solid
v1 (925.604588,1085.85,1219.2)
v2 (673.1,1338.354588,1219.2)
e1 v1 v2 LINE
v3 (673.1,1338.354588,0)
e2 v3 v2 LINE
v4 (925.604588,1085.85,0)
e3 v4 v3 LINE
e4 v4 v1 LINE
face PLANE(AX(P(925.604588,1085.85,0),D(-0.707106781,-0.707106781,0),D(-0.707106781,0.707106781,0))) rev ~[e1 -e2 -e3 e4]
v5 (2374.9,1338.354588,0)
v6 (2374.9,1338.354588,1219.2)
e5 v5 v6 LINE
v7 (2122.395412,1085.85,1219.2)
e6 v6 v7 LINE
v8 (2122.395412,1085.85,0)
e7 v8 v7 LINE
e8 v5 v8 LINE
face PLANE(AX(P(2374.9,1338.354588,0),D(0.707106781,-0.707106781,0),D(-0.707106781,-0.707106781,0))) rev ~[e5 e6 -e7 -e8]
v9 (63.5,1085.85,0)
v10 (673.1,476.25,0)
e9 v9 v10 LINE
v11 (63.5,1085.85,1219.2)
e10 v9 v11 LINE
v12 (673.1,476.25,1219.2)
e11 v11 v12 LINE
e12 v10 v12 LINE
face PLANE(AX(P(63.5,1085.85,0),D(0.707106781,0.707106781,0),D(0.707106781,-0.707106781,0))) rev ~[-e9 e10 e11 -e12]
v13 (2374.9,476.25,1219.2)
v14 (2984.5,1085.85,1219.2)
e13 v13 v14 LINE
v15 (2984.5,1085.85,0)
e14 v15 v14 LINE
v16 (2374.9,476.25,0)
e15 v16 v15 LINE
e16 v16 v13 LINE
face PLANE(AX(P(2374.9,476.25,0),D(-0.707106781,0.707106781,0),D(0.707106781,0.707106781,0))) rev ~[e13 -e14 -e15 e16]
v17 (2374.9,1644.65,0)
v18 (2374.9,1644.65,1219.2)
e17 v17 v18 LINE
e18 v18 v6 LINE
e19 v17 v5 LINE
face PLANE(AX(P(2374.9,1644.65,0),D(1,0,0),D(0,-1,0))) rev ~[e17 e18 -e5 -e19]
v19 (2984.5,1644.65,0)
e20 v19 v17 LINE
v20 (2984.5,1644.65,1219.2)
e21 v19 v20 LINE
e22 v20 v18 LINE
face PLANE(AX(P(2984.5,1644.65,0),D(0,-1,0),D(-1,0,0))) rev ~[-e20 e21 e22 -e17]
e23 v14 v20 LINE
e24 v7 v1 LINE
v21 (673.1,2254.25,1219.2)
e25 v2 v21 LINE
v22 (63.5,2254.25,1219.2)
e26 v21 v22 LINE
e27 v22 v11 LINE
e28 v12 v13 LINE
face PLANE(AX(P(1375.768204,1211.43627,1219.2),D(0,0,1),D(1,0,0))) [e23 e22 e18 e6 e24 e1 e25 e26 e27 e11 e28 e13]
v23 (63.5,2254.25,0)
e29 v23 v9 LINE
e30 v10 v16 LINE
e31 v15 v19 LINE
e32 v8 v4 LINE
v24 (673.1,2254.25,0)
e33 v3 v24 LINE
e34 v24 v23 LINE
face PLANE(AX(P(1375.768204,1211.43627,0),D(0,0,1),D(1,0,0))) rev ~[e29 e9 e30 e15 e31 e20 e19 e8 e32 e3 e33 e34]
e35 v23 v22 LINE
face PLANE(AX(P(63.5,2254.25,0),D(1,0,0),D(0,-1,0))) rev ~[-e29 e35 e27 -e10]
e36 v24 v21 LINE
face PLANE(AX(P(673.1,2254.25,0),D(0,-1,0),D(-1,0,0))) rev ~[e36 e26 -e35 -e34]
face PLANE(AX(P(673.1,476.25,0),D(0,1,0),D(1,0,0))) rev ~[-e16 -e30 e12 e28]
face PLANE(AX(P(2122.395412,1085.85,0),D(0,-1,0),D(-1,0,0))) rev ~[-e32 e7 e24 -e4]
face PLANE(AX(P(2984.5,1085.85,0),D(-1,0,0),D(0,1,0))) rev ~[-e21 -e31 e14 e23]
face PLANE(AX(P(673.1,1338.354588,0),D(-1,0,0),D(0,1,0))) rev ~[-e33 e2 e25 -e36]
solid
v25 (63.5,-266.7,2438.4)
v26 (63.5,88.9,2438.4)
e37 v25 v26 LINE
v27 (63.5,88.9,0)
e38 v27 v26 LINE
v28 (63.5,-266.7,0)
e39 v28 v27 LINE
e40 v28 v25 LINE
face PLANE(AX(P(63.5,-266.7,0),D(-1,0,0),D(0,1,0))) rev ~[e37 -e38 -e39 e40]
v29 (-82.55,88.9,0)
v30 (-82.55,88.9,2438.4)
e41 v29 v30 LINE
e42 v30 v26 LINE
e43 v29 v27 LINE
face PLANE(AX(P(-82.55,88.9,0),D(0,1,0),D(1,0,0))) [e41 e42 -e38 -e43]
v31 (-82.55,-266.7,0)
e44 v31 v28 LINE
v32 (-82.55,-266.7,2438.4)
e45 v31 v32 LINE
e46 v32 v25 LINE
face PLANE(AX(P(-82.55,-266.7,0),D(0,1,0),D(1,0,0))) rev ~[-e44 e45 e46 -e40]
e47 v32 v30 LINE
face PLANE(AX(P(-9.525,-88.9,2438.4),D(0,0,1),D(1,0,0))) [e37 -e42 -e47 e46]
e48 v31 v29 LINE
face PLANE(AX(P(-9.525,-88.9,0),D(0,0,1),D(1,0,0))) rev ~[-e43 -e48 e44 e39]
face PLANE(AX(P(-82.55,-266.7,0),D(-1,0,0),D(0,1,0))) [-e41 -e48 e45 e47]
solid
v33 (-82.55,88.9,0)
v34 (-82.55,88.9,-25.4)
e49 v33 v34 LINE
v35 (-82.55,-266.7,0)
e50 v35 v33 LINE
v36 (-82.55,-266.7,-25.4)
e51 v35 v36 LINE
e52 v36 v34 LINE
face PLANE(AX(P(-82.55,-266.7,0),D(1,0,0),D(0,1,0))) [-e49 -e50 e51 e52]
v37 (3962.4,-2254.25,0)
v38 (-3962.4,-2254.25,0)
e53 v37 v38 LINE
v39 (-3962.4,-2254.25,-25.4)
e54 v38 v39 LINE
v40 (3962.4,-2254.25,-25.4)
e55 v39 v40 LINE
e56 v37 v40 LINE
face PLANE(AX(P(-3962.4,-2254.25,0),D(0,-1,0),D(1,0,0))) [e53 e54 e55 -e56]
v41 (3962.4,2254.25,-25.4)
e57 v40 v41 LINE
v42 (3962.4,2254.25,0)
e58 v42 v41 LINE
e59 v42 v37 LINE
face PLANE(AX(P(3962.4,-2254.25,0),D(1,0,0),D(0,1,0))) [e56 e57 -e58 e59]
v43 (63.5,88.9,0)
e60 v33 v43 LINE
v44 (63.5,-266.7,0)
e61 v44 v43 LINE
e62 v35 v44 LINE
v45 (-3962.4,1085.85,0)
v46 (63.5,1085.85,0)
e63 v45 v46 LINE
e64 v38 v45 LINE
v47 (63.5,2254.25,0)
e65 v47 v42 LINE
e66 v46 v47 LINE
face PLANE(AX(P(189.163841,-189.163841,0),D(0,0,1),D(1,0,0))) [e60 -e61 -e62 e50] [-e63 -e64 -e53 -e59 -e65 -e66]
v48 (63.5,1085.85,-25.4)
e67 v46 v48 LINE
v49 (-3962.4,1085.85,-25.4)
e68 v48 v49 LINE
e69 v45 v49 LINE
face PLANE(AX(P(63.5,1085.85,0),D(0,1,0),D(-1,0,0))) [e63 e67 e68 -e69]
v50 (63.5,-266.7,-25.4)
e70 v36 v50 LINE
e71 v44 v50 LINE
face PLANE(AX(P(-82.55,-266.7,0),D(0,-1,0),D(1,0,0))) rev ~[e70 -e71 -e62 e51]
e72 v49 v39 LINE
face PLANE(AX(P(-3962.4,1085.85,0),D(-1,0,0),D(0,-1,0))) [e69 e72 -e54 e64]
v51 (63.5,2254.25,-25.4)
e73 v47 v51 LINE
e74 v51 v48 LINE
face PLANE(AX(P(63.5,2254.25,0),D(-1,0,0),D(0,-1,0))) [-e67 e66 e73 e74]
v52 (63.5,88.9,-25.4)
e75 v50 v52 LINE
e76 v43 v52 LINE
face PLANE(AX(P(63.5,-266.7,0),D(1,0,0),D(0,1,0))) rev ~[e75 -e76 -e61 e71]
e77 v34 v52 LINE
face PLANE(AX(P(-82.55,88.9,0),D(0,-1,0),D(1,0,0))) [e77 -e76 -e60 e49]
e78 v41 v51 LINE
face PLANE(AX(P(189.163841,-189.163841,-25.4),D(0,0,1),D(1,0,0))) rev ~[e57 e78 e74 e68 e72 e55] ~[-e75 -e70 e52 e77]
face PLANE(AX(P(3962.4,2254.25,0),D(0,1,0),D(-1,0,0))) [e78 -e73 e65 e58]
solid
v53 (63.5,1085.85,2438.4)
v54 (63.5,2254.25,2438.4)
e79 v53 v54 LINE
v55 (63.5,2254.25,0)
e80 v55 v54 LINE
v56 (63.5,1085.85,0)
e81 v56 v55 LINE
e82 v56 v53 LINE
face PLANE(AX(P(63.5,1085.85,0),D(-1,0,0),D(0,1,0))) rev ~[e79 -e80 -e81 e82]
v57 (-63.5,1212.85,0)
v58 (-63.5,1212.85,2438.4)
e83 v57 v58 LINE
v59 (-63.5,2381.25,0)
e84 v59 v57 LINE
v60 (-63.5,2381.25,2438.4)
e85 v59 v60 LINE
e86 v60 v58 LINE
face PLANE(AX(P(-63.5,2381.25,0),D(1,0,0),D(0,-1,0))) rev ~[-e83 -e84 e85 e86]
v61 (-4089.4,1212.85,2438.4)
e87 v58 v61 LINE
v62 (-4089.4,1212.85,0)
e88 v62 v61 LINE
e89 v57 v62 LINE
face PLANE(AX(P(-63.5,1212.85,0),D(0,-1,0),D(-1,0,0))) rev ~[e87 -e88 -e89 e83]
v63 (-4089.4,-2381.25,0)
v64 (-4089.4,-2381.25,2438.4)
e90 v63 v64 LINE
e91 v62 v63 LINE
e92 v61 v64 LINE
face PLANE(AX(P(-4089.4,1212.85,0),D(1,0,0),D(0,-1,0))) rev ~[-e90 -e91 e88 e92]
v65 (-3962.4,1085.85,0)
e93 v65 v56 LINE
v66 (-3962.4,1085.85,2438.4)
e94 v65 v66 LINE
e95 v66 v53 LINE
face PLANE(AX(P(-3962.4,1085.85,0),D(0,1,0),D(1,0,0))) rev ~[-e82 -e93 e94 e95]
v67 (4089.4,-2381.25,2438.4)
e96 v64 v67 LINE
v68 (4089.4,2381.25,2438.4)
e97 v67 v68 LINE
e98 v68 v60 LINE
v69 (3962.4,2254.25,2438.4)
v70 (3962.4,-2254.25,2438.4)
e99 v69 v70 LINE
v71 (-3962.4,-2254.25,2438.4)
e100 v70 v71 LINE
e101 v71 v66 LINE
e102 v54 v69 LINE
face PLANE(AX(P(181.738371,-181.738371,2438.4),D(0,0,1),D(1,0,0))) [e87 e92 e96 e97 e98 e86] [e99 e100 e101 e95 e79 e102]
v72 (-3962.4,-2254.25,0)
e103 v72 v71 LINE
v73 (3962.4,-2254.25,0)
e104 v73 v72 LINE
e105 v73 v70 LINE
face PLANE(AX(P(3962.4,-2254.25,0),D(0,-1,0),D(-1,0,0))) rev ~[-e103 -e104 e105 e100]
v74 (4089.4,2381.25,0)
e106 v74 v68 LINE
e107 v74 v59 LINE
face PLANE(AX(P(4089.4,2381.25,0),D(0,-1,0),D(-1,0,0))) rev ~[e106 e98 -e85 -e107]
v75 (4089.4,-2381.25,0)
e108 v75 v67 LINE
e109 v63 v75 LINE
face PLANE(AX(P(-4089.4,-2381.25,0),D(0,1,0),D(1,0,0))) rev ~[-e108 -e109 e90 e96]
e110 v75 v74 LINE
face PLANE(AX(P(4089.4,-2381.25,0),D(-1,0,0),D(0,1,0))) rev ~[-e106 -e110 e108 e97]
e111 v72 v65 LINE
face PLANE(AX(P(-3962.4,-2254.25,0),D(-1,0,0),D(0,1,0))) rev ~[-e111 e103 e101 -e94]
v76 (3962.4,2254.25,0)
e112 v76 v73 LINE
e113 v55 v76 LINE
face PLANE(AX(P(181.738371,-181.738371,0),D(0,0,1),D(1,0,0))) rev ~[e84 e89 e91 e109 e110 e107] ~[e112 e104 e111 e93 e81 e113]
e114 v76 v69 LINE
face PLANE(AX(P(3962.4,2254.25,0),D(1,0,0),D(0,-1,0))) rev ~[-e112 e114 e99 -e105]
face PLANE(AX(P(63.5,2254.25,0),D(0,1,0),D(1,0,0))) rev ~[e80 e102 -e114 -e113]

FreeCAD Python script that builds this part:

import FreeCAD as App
import Part
import Sketcher

V = App.Vector
Q = App.Units.Quantity


def add_polygon(sketch, points):
    """Adds a closed chain of lines whose ends are joined by coincident constraints."""
    first, n = sketch.GeometryCount, len(points)
    for a, b in zip(points, points[1:] + points[:1]):
        sketch.addGeometry(Part.LineSegment(App.Vector(*a, 0), App.Vector(*b, 0)), False)
    for i in range(n):
        sketch.addConstraint(Sketcher.Constraint("Coincident", first + i, 2, first + (i + 1) % n, 1))

doc = App.newDocument("Part")
body = doc.addObject("PartDesign::Body", "Body")
body.AllowCompound = True

# Sketch on XY plane
sketch1 = doc.addObject("Sketcher::SketchObject", "Sketch")
body.addObject(sketch1)
sketch1.AttachmentSupport = (doc.XY_Plane, [""])
sketch1.MapMode = "FlatFace"
add_polygon(sketch1, [(4089, 2381), (-64, 2381), (-64, 1213), (-4089, 1213), (-4089, -2381), (4089, -2381)])  # lines 0-5
add_polygon(sketch1, [(64, 1086), (64, 2254), (3962, 2254), (3962, -2254), (-3962, -2254), (-3962, 1086)])  # lines 6-11
sketch1.addConstraint(Sketcher.Constraint("Horizontal", 0))
sketch1.addConstraint(Sketcher.Constraint("Vertical", 1))
sketch1.addConstraint(Sketcher.Constraint("Horizontal", 2))
sketch1.addConstraint(Sketcher.Constraint("Vertical", 3))
sketch1.addConstraint(Sketcher.Constraint("Horizontal", 4))
sketch1.addConstraint(Sketcher.Constraint("Vertical", 5))
sketch1.addConstraint(Sketcher.Constraint("Vertical", 6))
sketch1.addConstraint(Sketcher.Constraint("Horizontal", 7))
sketch1.addConstraint(Sketcher.Constraint("Vertical", 8))
sketch1.addConstraint(Sketcher.Constraint("Horizontal", 9))
sketch1.addConstraint(Sketcher.Constraint("Vertical", 10))
sketch1.addConstraint(Sketcher.Constraint("Horizontal", 11))
sketch1.addConstraint(Sketcher.Constraint("Symmetric", 3, 2, 5, 2, -1, 1))
sketch1.addConstraint(Sketcher.Constraint("Symmetric", 7, 2, 9, 2, -1, 1))
sketch1.addConstraint(Sketcher.Constraint("Equal", 2, 11))
sketch1.addConstraint(Sketcher.Constraint("Equal", 1, 6))
sketch1.addConstraint(Sketcher.Constraint("DistanceX", 4, 1, 4, 2, Q("322 in")))
sketch1.addConstraint(Sketcher.Constraint("DistanceX", 9, 2, 9, 1, Q("312 in")))
sketch1.addConstraint(Sketcher.Constraint("DistanceY", 1, 2, 1, 1, Q("46 in")))
sketch1.addConstraint(Sketcher.Constraint("DistanceX", 0, 2, 0, 1, Q("163.5 in")))
sketch1.addConstraint(Sketcher.Constraint("DistanceY", 3, 2, 3, 1, Q("141.5 in")))
sketch1.addConstraint(Sketcher.Constraint("DistanceY", 8, 2, 8, 1, Q("177.5 in")))
pad1 = doc.addObject("PartDesign::Pad", "Pad")
body.addObject(pad1)
pad1.Profile = sketch1
pad1.Length = Q("96 in")

# Sketch on XY plane
sketch2 = doc.addObject("Sketcher::SketchObject", "Sketch001")
body.addObject(sketch2)
sketch2.AttachmentSupport = (doc.XY_Plane, [""])
sketch2.MapMode = "FlatFace"
add_polygon(sketch2, [(3962, -2254), (3962, 2254), (64, 2254), (64, 1086), (-3962, 1086), (-3962, -2254)])  # lines 0-5
add_polygon(sketch2, [(64, -267), (-83, -267), (-83, 89), (64, 89)])  # lines 6-9
sketch2.addConstraint(Sketcher.Constraint("Vertical", 0))
sketch2.addConstraint(Sketcher.Constraint("Horizontal", 1))
sketch2.addConstraint(Sketcher.Constraint("Vertical", 2))
sketch2.addConstraint(Sketcher.Constraint("Horizontal", 3))
sketch2.addConstraint(Sketcher.Constraint("Vertical", 4))
sketch2.addConstraint(Sketcher.Constraint("Horizontal", 5))
sketch2.addConstraint(Sketcher.Constraint("Horizontal", 6))
sketch2.addConstraint(Sketcher.Constraint("Vertical", 7))
sketch2.addConstraint(Sketcher.Constraint("Horizontal", 8))
sketch2.addConstraint(Sketcher.Constraint("Vertical", 9))
sketch2.addConstraint(Sketcher.Constraint("Symmetric", 0, 2, 4, 2, -1, 1))
sketch2.addConstraint(Sketcher.Constraint("Vertical", 2, 2, 8, 2))
sketch2.addConstraint(Sketcher.Constraint("DistanceX", 5, 1, 5, 2, Q("312 in")))
sketch2.addConstraint(Sketcher.Constraint("DistanceY", 2, 2, 2, 1, Q("46 in")))
sketch2.addConstraint(Sketcher.Constraint("DistanceY", 7, 1, 7, 2, Q("14 in")))
sketch2.addConstraint(Sketcher.Constraint("DistanceX", 1, 2, 1, 1, Q("153.5 in")))
sketch2.addConstraint(Sketcher.Constraint("DistanceY", 0, 1, 0, 2, Q("177.5 in")))
sketch2.addConstraint(Sketcher.Constraint("DistanceX", 6, 2, 6, 1, Q("5.75 in")))
sketch2.addConstraint(Sketcher.Constraint("DistanceY", 6, 2, -1, 1, Q("10.5 in")))
pad2 = doc.addObject("PartDesign::Pad", "Pad001")
body.addObject(pad2)
pad2.Profile = sketch2
pad2.Length = Q("1 in")
pad2.Reversed = True
body2 = doc.addObject("PartDesign::Body", "Body001")

# Sketch on XY plane
sketch3 = doc.addObject("Sketcher::SketchObject", "Sketch002")
body2.addObject(sketch3)
sketch3.AttachmentSupport = (doc.getObject("XY_Plane001"), [""])
sketch3.MapMode = "FlatFace"
add_polygon(sketch3, [(-83, 89), (-83, -267), (64, -267), (64, 89)])  # lines 0-3
sketch3.addConstraint(Sketcher.Constraint("Vertical", 0))
sketch3.addConstraint(Sketcher.Constraint("Horizontal", 1))
sketch3.addConstraint(Sketcher.Constraint("Vertical", 2))
sketch3.addConstraint(Sketcher.Constraint("Horizontal", 3))
sketch3.addConstraint(Sketcher.Constraint("DistanceY", 0, 2, 0, 1, Q("14 in")))
sketch3.addConstraint(Sketcher.Constraint("DistanceX", 1, 1, 1, 2, Q("5.75 in")))
sketch3.addConstraint(Sketcher.Constraint("DistanceY", 0, 2, -1, 1, Q("10.5 in")))
sketch3.addConstraint(Sketcher.Constraint("DistanceX", -1, 1, 1, 2, Q("2.5 in")))
pad3 = doc.addObject("PartDesign::Pad", "Pad002")
body2.addObject(pad3)
pad3.Profile = sketch3
pad3.Length = Q("96 in")
body3 = doc.addObject("PartDesign::Body", "Body002")

# Sketch on XY plane
sketch4 = doc.addObject("Sketcher::SketchObject", "Sketch003")
body3.addObject(sketch4)
sketch4.AttachmentSupport = (doc.getObject("XY_Plane002"), [""])
sketch4.MapMode = "FlatFace"
add_polygon(sketch4, [(64, 2254), (64, 1086), (673, 476), (2375, 476), (2984, 1086), (2984, 1645), (2375, 1645), (2375, 1338), (2122, 1086), (926, 1086), (673, 1338), (673, 2254)])  # lines 0-11
sketch4.addConstraint(Sketcher.Constraint("Vertical", 0))
sketch4.addConstraint(Sketcher.Constraint("Horizontal", 2))
sketch4.addConstraint(Sketcher.Constraint("Vertical", 4))
sketch4.addConstraint(Sketcher.Constraint("Horizontal", 5))
sketch4.addConstraint(Sketcher.Constraint("Vertical", 6))
sketch4.addConstraint(Sketcher.Constraint("Horizontal", 8))
sketch4.addConstraint(Sketcher.Constraint("Vertical", 10))
sketch4.addConstraint(Sketcher.Constraint("Horizontal", 11))
sketch4.addConstraint(Sketcher.Constraint("Perpendicular", 1, 3))
sketch4.addConstraint(Sketcher.Constraint("Parallel", 3, 7))
sketch4.addConstraint(Sketcher.Constraint("Perpendicular", 7, 9))
sketch4.addConstraint(Sketcher.Constraint("Horizontal", 0, 2, 3, 2))
sketch4.addConstraint(Sketcher.Constraint("Horizontal", 3, 2, 7, 2))
sketch4.addConstraint(Sketcher.Constraint("Horizontal", 6, 2, 9, 2))
sketch4.addConstraint(Sketcher.Constraint("Vertical", 2, 2, 5, 2))
sketch4.addConstraint(Sketcher.Constraint("Vertical", 1, 2, 9, 2))
sketch4.addConstraint(Sketcher.Constraint("Equal", 5, 11))
sketch4.addConstraint(Sketcher.Constraint("DistanceX", 2, 1, 2, 2, Q("67 in")))
sketch4.addConstraint(Sketcher.Constraint("DistanceX", 5, 2, 5, 1, Q("24 in")))
sketch4.addConstraint(Sketcher.Constraint("DistanceY", 0, 2, 0, 1, Q("46 in")))
sketch4.addConstraint(Sketcher.Constraint("DistanceY", 4, 1, 4, 2, Q("22 in")))
sketch4.addConstraint(Sketcher.Constraint("DistanceX", -1, 1, 0, 2, Q("2.5 in")))
sketch4.addConstraint(Sketcher.Constraint("DistanceY", -1, 1, 0, 2, Q("42.75 in")))
sketch4.addConstraint(Sketcher.Constraint("DistanceX", 8, 2, 8, 1, 1196.790824))
pad4 = doc.addObject("PartDesign::Pad", "Pad003")
body3.addObject(pad4)
pad4.Profile = sketch4
pad4.Length = Q("48 in")

doc.recompute()
